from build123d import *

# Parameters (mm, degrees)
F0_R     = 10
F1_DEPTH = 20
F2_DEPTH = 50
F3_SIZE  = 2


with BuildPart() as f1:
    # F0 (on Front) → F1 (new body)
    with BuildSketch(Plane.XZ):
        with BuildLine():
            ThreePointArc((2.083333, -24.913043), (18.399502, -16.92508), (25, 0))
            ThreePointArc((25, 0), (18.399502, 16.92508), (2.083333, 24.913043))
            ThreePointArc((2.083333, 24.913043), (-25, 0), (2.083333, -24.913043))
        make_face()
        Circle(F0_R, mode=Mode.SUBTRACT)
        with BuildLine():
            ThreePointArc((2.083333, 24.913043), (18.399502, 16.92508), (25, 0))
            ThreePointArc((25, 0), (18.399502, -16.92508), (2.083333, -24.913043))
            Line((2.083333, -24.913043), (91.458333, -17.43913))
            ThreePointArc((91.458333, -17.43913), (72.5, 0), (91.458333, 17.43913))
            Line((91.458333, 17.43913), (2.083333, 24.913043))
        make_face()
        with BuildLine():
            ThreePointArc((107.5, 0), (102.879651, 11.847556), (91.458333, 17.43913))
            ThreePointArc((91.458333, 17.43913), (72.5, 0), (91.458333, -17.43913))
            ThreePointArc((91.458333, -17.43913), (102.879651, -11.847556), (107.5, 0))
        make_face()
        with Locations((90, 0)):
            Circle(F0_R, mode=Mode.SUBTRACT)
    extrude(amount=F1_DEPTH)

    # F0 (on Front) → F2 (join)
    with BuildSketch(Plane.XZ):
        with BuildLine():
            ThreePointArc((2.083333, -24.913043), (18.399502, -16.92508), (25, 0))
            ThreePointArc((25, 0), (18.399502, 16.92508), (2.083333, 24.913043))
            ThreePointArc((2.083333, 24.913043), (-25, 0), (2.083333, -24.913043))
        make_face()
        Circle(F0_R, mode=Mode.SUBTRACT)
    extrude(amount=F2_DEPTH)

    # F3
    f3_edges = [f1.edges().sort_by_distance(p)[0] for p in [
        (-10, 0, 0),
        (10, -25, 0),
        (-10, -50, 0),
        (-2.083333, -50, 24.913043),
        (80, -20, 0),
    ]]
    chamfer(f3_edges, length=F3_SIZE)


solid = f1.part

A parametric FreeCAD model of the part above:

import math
import FreeCAD as App
import Part
import Sketcher


def edges_at(feature, points):
    """Names of the edges that pass closest to the given points."""
    edges = feature.Shape.Edges
    near = lambda p: min(range(len(edges)), key=lambda i: edges[i].distToShape(Part.Vertex(*p))[0])
    return sorted({f"Edge{near(p) + 1}" for p in points})

doc = App.newDocument("Part")
body = doc.addObject("PartDesign::Body", "Body")

sketch1 = body.newObject("Sketcher::SketchObject", "Sketch")
sketch1.AttachmentSupport = (doc.getObject("XZ_Plane"), [""])
sketch1.MapMode = "FlatFace"
sketch1.addGeometry(Part.ArcOfCircle(Part.Circle(App.Vector(0, 0, 0), App.Vector(0, 0, 1), 25), math.radians(85.219808), math.radians(274.780192)), False)
sketch1.addGeometry(Part.LineSegment(App.Vector(2.083333, -24.913043, 0), App.Vector(91.458333, -17.43913, 0)), False)
sketch1.addGeometry(Part.ArcOfCircle(Part.Circle(App.Vector(90, 0, 0), App.Vector(0, 0, 1), 17.5), math.radians(-85.219809), math.radians(-0.000001)), False)
sketch1.addGeometry(Part.ArcOfCircle(Part.Circle(App.Vector(90, 0, 0), App.Vector(0, 0, 1), 17.5), math.radians(0.000001), math.radians(85.219809)), False)
sketch1.addGeometry(Part.LineSegment(App.Vector(91.458333, 17.43913, 0), App.Vector(2.083333, 24.913043, 0)), False)
sketch1.addGeometry(Part.Circle(App.Vector(0, 0, 0), App.Vector(0, 0, 1), 10), False)
sketch1.addGeometry(Part.Circle(App.Vector(90, 0, 0), App.Vector(0, 0, 1), 10), False)
sketch1.addConstraint(Sketcher.Constraint("Tangent", 0, 2, 1, 1))
sketch1.addConstraint(Sketcher.Constraint("Tangent", 1, 2, 2, 1))
sketch1.addConstraint(Sketcher.Constraint("Tangent", 2, 2, 3, 1))
sketch1.addConstraint(Sketcher.Constraint("Tangent", 3, 2, 4, 1))
sketch1.addConstraint(Sketcher.Constraint("Tangent", 4, 2, 0, 1))
sketch1.addConstraint(Sketcher.Constraint("Coincident", 0, 3, -1, 1))
sketch1.addConstraint(Sketcher.Constraint("Coincident", 5, 3, -1, 1))
sketch1.addConstraint(Sketcher.Constraint("Coincident", 6, 3, 2, 3))
sketch1.addConstraint(Sketcher.Constraint("Equal", 2, 3))
sketch1.addConstraint(Sketcher.Constraint("Equal", 5, 6))
sketch1.addConstraint(Sketcher.Constraint("PointOnObject", 2, 3, -1))
sketch1.addConstraint(Sketcher.Constraint("PointOnObject", 2, 2, -1))
sketch1.addConstraint(Sketcher.Constraint("Diameter", 5, 20.0))
sketch1.addConstraint(Sketcher.Constraint("Radius", 0, 25.0))
sketch1.addConstraint(Sketcher.Constraint("Radius", 2, 17.5))
sketch1.addConstraint(Sketcher.Constraint("DistanceX", -1, 1, 2, 3, 90.0))
pad1 = body.newObject("PartDesign::Pad", "Pad")
pad1.Profile = sketch1
pad1.Length = 20

sketch2 = body.newObject("Sketcher::SketchObject", "Sketch001")
sketch2.AttachmentSupport = (doc.getObject("XZ_Plane"), [""])
sketch2.MapMode = "FlatFace"
sketch2.addGeometry(Part.ArcOfCircle(Part.Circle(App.Vector(0.000001, -0.000001, 0), App.Vector(0, 0, 1), 24.999999), math.radians(-85.219811), math.radians(0.000001)), False)
sketch2.addGeometry(Part.ArcOfCircle(Part.Circle(App.Vector(0.000001, 0.000001, 0), App.Vector(0, 0, 1), 24.999999), math.radians(-0.000001), math.radians(85.219811)), False)
sketch2.addGeometry(Part.ArcOfCircle(Part.Circle(App.Vector(0, 0, 0), App.Vector(0, 0, 1), 25), math.radians(85.219808), math.radians(274.780192)), False)
sketch2.addGeometry(Part.Circle(App.Vector(0, 0, 0), App.Vector(0, 0, 1), 10), False)
sketch2.addConstraint(Sketcher.Constraint("Tangent", 0, 2, 1, 1))
sketch2.addConstraint(Sketcher.Constraint("Tangent", 1, 2, 2, 1))
sketch2.addConstraint(Sketcher.Constraint("Tangent", 2, 2, 0, 1))
sketch2.addConstraint(Sketcher.Constraint("Coincident", 0, 3, -1, 1))
sketch2.addConstraint(Sketcher.Constraint("Coincident", 3, 3, -1, 1))
sketch2.addConstraint(Sketcher.Constraint("PointOnObject", 0, 2, -1))
sketch2.addConstraint(Sketcher.Constraint("Vertical", 1, 2, 2, 2))
sketch2.addConstraint(Sketcher.Constraint("Diameter", 3, 20.0))
sketch2.addConstraint(Sketcher.Constraint("Radius", 0, 24.999999))
sketch2.addConstraint(Sketcher.Constraint("DistanceX", -1, 1, 1, 2, 2.083333))
pad2 = body.newObject("PartDesign::Pad", "Pad001")
pad2.Profile = sketch2
pad2.Length = 50
doc.recompute()

chamfer = body.newObject("PartDesign::Chamfer", "Chamfer")
chamfer.Base = (pad2, edges_at(pad2, [
    (-10, 0, 0),
    (10, -25, 0),
    (-10, -50, 0),
    (-25, -50, 0),
    (80, -20, 0),
]))
chamfer.Size = 2

doc.recompute()
